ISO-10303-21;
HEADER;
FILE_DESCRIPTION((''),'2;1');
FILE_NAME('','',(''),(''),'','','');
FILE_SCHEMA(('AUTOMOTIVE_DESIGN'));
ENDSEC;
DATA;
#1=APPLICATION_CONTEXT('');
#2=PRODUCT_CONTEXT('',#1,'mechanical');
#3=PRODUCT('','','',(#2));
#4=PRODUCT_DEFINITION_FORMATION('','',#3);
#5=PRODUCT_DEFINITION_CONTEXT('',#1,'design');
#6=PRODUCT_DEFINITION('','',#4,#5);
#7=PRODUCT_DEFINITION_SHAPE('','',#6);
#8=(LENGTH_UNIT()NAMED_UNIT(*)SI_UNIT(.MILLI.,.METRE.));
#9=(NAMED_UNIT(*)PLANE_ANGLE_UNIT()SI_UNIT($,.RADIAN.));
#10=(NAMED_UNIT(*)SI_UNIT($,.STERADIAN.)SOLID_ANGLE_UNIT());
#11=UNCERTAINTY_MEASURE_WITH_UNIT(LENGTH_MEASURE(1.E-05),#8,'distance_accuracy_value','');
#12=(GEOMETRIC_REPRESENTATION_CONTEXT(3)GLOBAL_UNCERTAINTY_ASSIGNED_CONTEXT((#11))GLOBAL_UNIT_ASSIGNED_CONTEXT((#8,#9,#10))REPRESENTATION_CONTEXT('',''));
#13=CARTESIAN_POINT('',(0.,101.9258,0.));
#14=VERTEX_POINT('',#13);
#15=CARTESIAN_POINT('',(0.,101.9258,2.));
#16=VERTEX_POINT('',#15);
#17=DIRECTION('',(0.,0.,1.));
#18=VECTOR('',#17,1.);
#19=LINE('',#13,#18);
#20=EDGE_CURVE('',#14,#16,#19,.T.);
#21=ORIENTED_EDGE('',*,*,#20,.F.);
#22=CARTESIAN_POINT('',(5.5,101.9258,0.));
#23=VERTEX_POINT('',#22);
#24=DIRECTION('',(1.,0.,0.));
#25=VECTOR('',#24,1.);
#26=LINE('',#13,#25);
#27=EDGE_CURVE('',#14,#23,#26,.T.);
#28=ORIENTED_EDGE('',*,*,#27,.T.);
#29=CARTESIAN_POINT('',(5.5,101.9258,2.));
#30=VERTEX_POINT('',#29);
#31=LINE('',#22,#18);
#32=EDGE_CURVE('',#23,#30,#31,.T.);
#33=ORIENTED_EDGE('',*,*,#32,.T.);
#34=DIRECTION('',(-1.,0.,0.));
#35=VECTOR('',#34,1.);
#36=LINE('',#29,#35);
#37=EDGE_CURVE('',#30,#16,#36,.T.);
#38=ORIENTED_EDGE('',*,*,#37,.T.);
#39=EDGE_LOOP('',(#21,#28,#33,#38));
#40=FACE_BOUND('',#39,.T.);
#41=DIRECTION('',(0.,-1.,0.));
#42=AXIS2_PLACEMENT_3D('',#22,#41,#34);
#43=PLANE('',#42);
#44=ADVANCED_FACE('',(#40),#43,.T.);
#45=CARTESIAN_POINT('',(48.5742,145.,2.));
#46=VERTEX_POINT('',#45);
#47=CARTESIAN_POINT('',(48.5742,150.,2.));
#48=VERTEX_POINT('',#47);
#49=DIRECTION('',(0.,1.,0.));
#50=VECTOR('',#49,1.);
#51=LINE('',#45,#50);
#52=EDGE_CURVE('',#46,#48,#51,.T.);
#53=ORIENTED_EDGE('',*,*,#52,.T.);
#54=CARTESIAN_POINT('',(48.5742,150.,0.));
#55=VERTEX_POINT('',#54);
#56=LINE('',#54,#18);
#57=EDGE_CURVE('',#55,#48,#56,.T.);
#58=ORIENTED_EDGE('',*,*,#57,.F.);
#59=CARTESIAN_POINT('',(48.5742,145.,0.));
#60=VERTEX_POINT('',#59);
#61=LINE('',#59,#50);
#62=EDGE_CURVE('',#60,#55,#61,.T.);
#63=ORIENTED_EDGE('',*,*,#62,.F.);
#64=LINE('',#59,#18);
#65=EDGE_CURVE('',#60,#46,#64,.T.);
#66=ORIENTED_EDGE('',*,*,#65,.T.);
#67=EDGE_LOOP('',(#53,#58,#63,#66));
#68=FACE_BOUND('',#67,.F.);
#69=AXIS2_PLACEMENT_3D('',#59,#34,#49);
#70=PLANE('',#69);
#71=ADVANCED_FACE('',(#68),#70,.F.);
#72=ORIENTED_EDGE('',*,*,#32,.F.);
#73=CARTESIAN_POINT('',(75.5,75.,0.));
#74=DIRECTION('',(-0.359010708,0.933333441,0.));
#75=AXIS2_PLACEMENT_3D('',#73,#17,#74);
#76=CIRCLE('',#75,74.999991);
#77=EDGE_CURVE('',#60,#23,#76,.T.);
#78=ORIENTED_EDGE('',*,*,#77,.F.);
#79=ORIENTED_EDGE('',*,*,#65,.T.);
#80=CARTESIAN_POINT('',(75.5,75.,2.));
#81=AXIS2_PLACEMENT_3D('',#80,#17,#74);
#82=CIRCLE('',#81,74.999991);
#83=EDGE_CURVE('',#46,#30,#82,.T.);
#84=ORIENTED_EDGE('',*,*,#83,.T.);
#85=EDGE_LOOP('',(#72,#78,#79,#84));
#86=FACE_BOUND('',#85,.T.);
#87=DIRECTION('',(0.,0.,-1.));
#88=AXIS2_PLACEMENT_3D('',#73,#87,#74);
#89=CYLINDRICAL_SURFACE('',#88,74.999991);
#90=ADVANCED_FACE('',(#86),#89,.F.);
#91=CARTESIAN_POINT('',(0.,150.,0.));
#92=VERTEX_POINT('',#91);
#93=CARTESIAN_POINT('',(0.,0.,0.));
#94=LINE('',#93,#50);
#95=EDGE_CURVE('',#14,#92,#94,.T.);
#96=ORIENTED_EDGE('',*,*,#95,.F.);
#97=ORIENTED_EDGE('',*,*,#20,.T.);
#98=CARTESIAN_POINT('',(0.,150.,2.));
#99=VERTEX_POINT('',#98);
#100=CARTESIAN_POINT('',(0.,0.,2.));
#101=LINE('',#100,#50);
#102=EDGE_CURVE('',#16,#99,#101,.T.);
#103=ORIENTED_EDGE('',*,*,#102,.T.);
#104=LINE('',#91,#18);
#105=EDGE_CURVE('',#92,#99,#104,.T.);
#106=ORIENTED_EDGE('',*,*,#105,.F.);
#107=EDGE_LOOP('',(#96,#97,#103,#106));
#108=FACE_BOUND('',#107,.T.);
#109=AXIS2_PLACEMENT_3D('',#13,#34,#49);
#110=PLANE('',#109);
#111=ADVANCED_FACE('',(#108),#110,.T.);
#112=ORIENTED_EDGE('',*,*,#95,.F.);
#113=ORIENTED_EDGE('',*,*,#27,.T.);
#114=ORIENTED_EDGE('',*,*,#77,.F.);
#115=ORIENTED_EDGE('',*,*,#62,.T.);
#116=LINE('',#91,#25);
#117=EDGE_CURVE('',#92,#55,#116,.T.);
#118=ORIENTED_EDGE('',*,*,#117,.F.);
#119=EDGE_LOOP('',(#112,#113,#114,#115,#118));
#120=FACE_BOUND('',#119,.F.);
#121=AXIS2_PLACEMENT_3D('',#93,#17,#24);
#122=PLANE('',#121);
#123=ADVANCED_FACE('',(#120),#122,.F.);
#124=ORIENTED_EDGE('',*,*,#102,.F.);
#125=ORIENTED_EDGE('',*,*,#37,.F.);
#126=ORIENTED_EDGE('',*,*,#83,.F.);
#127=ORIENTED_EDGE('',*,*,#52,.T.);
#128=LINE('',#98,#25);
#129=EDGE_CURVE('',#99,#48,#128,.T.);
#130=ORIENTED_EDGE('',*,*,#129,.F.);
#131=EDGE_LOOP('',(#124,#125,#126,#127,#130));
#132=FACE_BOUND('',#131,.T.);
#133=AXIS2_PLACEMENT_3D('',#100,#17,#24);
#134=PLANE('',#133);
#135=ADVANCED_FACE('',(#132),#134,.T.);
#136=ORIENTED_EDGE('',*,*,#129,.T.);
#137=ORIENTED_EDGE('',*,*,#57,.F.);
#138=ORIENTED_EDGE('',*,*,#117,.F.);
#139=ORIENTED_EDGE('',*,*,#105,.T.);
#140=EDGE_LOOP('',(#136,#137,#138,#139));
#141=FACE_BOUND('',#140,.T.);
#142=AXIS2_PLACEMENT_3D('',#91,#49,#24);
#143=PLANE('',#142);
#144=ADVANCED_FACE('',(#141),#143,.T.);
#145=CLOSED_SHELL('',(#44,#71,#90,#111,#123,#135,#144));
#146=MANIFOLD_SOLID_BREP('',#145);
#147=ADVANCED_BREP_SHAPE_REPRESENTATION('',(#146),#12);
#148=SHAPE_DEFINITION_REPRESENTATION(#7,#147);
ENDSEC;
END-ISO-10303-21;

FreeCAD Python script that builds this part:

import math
import FreeCAD as App
import Part
import Sketcher
from FreeCAD import Vector
Q = App.Units.Quantity

doc = App.newDocument("Part")
body = doc.addObject("PartDesign::Body", "Body")

# Sketch on XY plane
sketch1 = body.newObject("Sketcher::SketchObject", "Sketch")
sketch1.AttachmentSupport = (doc.getObject("XY_Plane"), [""])
sketch1.MapMode = "FlatFace"
sketch1.addGeometry([
    Part.ArcOfCircle(Part.Circle(Vector(75.5, 75, 0), Vector(0, 0, 1), 74.999991), math.radians(111.039453), math.radians(158.960547)),  # 0
    Part.LineSegment(Vector(48.5742, 145, 0), Vector(48.5742, 150, 0)),  # 1
    Part.LineSegment(Vector(48.5742, 150, 0), Vector(0, 150, 0)),  # 2
    Part.LineSegment(Vector(0, 150, 0), Vector(0, 101.9258, 0)),  # 3
    Part.LineSegment(Vector(0, 101.9258, 0), Vector(5.5, 101.9258, 0)),  # 4
], False)
sketch1.addConstraint([
    Sketcher.Constraint("Coincident", 0, 1, 1, 1),
    Sketcher.Constraint("Coincident", 1, 2, 2, 1),
    Sketcher.Constraint("Coincident", 2, 2, 3, 1),
    Sketcher.Constraint("Coincident", 3, 2, 4, 1),
    Sketcher.Constraint("Coincident", 4, 2, 0, 2),
    Sketcher.Constraint("Vertical", 1),
    Sketcher.Constraint("Horizontal", 2),
    Sketcher.Constraint("Vertical", 3),
    Sketcher.Constraint("Horizontal", 4),
    Sketcher.Constraint("PointOnObject", 2, 2, -2),
    Sketcher.Constraint("Radius", 0, Q("75 mm")),
    Sketcher.Constraint("DistanceY", 1, 1, 1, 2, Q("5 mm")),
    Sketcher.Constraint("DistanceX", 4, 1, 4, 2, Q("5.5 mm")),
    Sketcher.Constraint("DistanceY", -1, 1, 0, 3, Q("75 mm")),
    Sketcher.Constraint("DistanceY", -1, 1, 0, 1, Q("145 mm")),
    Sketcher.Constraint("DistanceX", 4, 2, 0, 3, Q("70 mm")),
])
pad1 = body.newObject("PartDesign::Pad", "Pad")
pad1.Profile = sketch1
pad1.Length = 2

doc.recompute()
